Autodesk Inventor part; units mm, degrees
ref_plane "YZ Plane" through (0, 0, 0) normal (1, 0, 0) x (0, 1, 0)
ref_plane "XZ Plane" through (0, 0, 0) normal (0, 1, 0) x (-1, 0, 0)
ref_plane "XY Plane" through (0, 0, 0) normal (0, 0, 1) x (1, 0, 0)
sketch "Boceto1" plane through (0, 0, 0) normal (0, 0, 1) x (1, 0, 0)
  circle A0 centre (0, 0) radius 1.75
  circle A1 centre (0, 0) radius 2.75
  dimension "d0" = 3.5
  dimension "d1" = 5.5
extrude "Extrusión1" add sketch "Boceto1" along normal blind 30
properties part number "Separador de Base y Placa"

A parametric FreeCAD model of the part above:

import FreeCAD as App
import Part
import Sketcher
from FreeCAD import Vector
Q = App.Units.Quantity

doc = App.newDocument("Part")
body = doc.addObject("PartDesign::Body", "Body")

sketch1 = body.newObject("Sketcher::SketchObject", "Sketch")
sketch1.AttachmentSupport = (doc.getObject("XY_Plane"), [""])
sketch1.MapMode = "FlatFace"
sketch1.addGeometry([
    Part.Circle(Vector(0, 0, 0), Vector(0, 0, 1), 2.75),
    Part.Circle(Vector(0, 0, 0), Vector(0, 0, 1), 1.75),
], False)
sketch1.addConstraint([
    Sketcher.Constraint("Coincident", 0, 3, -1, 1),
    Sketcher.Constraint("Coincident", 1, 3, -1, 1),
    Sketcher.Constraint("Diameter", 0, Q("5.5 mm")),
    Sketcher.Constraint("Diameter", 1, Q("3.5 mm")),
])
pad1 = body.newObject("PartDesign::Pad", "Pad")
pad1.Profile = sketch1
pad1.Length = 30

doc.recompute()
